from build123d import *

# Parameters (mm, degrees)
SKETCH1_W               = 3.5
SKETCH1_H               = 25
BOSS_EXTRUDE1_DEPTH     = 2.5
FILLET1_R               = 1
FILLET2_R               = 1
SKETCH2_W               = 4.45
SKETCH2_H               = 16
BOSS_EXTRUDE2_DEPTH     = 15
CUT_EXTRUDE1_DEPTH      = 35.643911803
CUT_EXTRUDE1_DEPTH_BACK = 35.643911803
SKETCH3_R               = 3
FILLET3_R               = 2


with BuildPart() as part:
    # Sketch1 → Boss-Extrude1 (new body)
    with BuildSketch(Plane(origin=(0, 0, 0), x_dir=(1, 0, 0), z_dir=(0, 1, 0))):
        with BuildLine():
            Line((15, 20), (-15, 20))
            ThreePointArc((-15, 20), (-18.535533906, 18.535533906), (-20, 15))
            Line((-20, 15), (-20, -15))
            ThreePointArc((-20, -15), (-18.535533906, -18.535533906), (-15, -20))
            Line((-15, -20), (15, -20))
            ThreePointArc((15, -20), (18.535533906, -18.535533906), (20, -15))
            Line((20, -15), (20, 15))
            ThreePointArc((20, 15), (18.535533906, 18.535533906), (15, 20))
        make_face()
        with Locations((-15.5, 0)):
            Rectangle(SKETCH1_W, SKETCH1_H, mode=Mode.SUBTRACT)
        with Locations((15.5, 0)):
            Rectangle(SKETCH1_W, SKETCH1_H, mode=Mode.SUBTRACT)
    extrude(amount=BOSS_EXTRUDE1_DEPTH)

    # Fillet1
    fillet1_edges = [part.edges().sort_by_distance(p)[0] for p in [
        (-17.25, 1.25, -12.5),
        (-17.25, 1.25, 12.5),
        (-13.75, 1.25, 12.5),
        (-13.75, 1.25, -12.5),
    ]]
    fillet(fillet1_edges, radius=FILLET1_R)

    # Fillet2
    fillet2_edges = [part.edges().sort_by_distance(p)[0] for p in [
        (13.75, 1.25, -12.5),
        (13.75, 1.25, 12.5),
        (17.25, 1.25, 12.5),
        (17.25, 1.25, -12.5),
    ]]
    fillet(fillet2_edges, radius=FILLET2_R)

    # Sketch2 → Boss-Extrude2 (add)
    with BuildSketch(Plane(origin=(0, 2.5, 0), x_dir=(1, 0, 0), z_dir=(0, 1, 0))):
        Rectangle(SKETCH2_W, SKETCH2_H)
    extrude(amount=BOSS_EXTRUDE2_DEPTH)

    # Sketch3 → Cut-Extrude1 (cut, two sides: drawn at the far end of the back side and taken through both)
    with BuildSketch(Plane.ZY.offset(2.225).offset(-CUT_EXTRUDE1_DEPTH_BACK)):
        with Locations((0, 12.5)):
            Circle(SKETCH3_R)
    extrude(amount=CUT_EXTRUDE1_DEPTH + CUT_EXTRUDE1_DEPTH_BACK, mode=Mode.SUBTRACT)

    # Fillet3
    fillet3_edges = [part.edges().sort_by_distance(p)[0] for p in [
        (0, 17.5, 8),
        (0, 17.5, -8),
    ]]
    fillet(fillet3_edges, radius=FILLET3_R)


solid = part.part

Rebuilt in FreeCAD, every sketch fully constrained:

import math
import FreeCAD as App
import Part
import Sketcher

V = App.Vector


def edges_at(feature, points):
    """Names of the edges that pass closest to the given points."""
    edges = feature.Shape.Edges
    near = lambda p: min(range(len(edges)), key=lambda i: edges[i].distToShape(Part.Vertex(*p))[0])
    return sorted({f"Edge{near(p) + 1}" for p in points})

doc = App.newDocument("Part")
body = doc.addObject("PartDesign::Body", "Body")

sketch1 = body.newObject("Sketcher::SketchObject", "Sketch")
sketch1.AttachmentSupport = (doc.getObject("XZ_Plane"), [""])
sketch1.MapMode = "FlatFace"
sketch1.addGeometry(Part.LineSegment(V(15, -20, 0), V(-15, -20, 0)), False)
sketch1.addGeometry(Part.ArcOfCircle(Part.Circle(V(-15, -15, 0), V(0, 0, 1), 5), math.radians(180), math.radians(270)), False)
sketch1.addGeometry(Part.LineSegment(V(-20, -15, 0), V(-20, 15, 0)), False)
sketch1.addGeometry(Part.ArcOfCircle(Part.Circle(V(-15, 15, 0), V(0, 0, 1), 5), math.radians(90), math.radians(180)), False)
sketch1.addGeometry(Part.LineSegment(V(-15, 20, 0), V(15, 20, 0)), False)
sketch1.addGeometry(Part.ArcOfCircle(Part.Circle(V(15, 15, 0), V(0, 0, 1), 5), math.radians(0), math.radians(90)), False)
sketch1.addGeometry(Part.LineSegment(V(20, 15, 0), V(20, -15, 0)), False)
sketch1.addGeometry(Part.ArcOfCircle(Part.Circle(V(15, -15, 0), V(0, 0, 1), 5), math.radians(-90), math.radians(0)), False)
sketch1.addGeometry(Part.LineSegment(V(-13.8, 12.5, 0), V(-17.2, 12.5, 0)), False)
sketch1.addGeometry(Part.LineSegment(V(-17.2, 12.5, 0), V(-17.2, -12.5, 0)), False)
sketch1.addGeometry(Part.LineSegment(V(-17.2, -12.5, 0), V(-13.8, -12.5, 0)), False)
sketch1.addGeometry(Part.LineSegment(V(-13.8, -12.5, 0), V(-13.8, 12.5, 0)), False)
sketch1.addGeometry(Part.LineSegment(V(17.2, 12.5, 0), V(13.8, 12.5, 0)), False)
sketch1.addGeometry(Part.LineSegment(V(13.8, 12.5, 0), V(13.8, -12.5, 0)), False)
sketch1.addGeometry(Part.LineSegment(V(13.8, -12.5, 0), V(17.2, -12.5, 0)), False)
sketch1.addGeometry(Part.LineSegment(V(17.2, -12.5, 0), V(17.2, 12.5, 0)), False)
sketch1.addConstraint(Sketcher.Constraint("Tangent", 0, 2, 1, 2))
sketch1.addConstraint(Sketcher.Constraint("Tangent", 1, 1, 2, 1))
sketch1.addConstraint(Sketcher.Constraint("Tangent", 2, 2, 3, 2))
sketch1.addConstraint(Sketcher.Constraint("Tangent", 3, 1, 4, 1))
sketch1.addConstraint(Sketcher.Constraint("Tangent", 4, 2, 5, 2))
sketch1.addConstraint(Sketcher.Constraint("Tangent", 5, 1, 6, 1))
sketch1.addConstraint(Sketcher.Constraint("Tangent", 6, 2, 7, 2))
sketch1.addConstraint(Sketcher.Constraint("Tangent", 7, 1, 0, 1))
sketch1.addConstraint(Sketcher.Constraint("Coincident", 8, 2, 9, 1))
sketch1.addConstraint(Sketcher.Constraint("Coincident", 9, 2, 10, 1))
sketch1.addConstraint(Sketcher.Constraint("Coincident", 10, 2, 11, 1))
sketch1.addConstraint(Sketcher.Constraint("Coincident", 11, 2, 8, 1))
sketch1.addConstraint(Sketcher.Constraint("Coincident", 12, 2, 13, 1))
sketch1.addConstraint(Sketcher.Constraint("Coincident", 13, 2, 14, 1))
sketch1.addConstraint(Sketcher.Constraint("Coincident", 14, 2, 15, 1))
sketch1.addConstraint(Sketcher.Constraint("Coincident", 15, 2, 12, 1))
sketch1.addConstraint(Sketcher.Constraint("Horizontal", 0))
sketch1.addConstraint(Sketcher.Constraint("Vertical", 2))
sketch1.addConstraint(Sketcher.Constraint("Horizontal", 4))
sketch1.addConstraint(Sketcher.Constraint("Vertical", 6))
sketch1.addConstraint(Sketcher.Constraint("Horizontal", 8))
sketch1.addConstraint(Sketcher.Constraint("Vertical", 9))
sketch1.addConstraint(Sketcher.Constraint("Horizontal", 10))
sketch1.addConstraint(Sketcher.Constraint("Vertical", 11))
sketch1.addConstraint(Sketcher.Constraint("Horizontal", 12))
sketch1.addConstraint(Sketcher.Constraint("Vertical", 13))
sketch1.addConstraint(Sketcher.Constraint("Horizontal", 14))
sketch1.addConstraint(Sketcher.Constraint("Vertical", 15))
sketch1.addConstraint(Sketcher.Constraint("Equal", 1, 3))
sketch1.addConstraint(Sketcher.Constraint("Equal", 3, 5))
sketch1.addConstraint(Sketcher.Constraint("Equal", 5, 7))
sketch1.addConstraint(Sketcher.Constraint("Symmetric", 1, 3, 5, 3, -1, 1))
sketch1.addConstraint(Sketcher.Constraint("Symmetric", 10, 2, 12, 2, -1, 1))
sketch1.addConstraint(Sketcher.Constraint("Symmetric", 8, 2, 14, 2, -1, 1))
sketch1.addConstraint(Sketcher.Constraint("Horizontal", 11, 2, 12, 2))
sketch1.addConstraint(Sketcher.Constraint("Equal", 4, 2))
sketch1.addConstraint(Sketcher.Constraint("Radius", 1, 5.0))
sketch1.addConstraint(Sketcher.Constraint("DistanceX", 0, 2, 0, 1, 30.0))
sketch1.addConstraint(Sketcher.Constraint("DistanceY", 9, 2, 9, 1, 25.0))
sketch1.addConstraint(Sketcher.Constraint("DistanceX", 8, 2, 8, 1, 3.5))
sketch1.addConstraint(Sketcher.Constraint("DistanceX", 11, 2, 12, 2, 27.5))
pad1 = body.newObject("PartDesign::Pad", "Pad")
pad1.Profile = sketch1
pad1.Length = 2.5
pad1.Reversed = True
doc.recompute()

fillet = body.newObject("PartDesign::Fillet", "Fillet")
fillet.Base = (pad1, edges_at(pad1, [
    (-17.25, 1.25, -12.5),
    (-17.25, 1.25, 12.5),
    (-13.75, 1.25, 12.5),
    (-13.75, 1.25, -12.5),
]))
fillet.Radius = 1
doc.recompute()

fillet2 = body.newObject("PartDesign::Fillet", "Fillet001")
fillet2.Base = (fillet, edges_at(fillet, [
    (13.75, 1.25, -12.5),
    (13.75, 1.25, 12.5),
    (17.25, 1.25, 12.5),
    (17.25, 1.25, -12.5),
]))
fillet2.Radius = 1

sketch2 = body.newObject("Sketcher::SketchObject", "Sketch001")
sketch2.AttachmentSupport = (doc.getObject("XZ_Plane"), [""])
sketch2.MapMode = "FlatFace"
sketch2.AttachmentOffset = App.Placement(V(0, 0, -2.5), App.Rotation())
sketch2.addGeometry(Part.LineSegment(V(-2.2, -8, 0), V(-2.2, 8, 0)), False)
sketch2.addGeometry(Part.LineSegment(V(-2.2, 8, 0), V(2.2, 8, 0)), False)
sketch2.addGeometry(Part.LineSegment(V(2.2, 8, 0), V(2.2, -8, 0)), False)
sketch2.addGeometry(Part.LineSegment(V(2.2, -8, 0), V(-2.2, -8, 0)), False)
sketch2.addConstraint(Sketcher.Constraint("Coincident", 0, 2, 1, 1))
sketch2.addConstraint(Sketcher.Constraint("Coincident", 1, 2, 2, 1))
sketch2.addConstraint(Sketcher.Constraint("Coincident", 2, 2, 3, 1))
sketch2.addConstraint(Sketcher.Constraint("Coincident", 3, 2, 0, 1))
sketch2.addConstraint(Sketcher.Constraint("Vertical", 0))
sketch2.addConstraint(Sketcher.Constraint("Horizontal", 1))
sketch2.addConstraint(Sketcher.Constraint("Vertical", 2))
sketch2.addConstraint(Sketcher.Constraint("Horizontal", 3))
sketch2.addConstraint(Sketcher.Constraint("Symmetric", 0, 2, 2, 2, -1, 1))
sketch2.addConstraint(Sketcher.Constraint("DistanceY", 0, 1, 0, 2, 16.0))
sketch2.addConstraint(Sketcher.Constraint("DistanceX", 1, 1, 1, 2, 4.45))
pad2 = body.newObject("PartDesign::Pad", "Pad001")
pad2.Profile = sketch2
pad2.Length = 15
pad2.Reversed = True

sketch3 = body.newObject("Sketcher::SketchObject", "Sketch002")
sketch3.AttachmentSupport = (doc.getObject("YZ_Plane"), [""])
sketch3.MapMode = "FlatFace"
sketch3.AttachmentOffset = App.Placement(V(0, 0, -2.225), App.Rotation())
sketch3.addGeometry(Part.Circle(V(12.5, 0, 0), V(0, 0, 1), 3), False)
sketch3.addConstraint(Sketcher.Constraint("PointOnObject", 0, 3, -1))
sketch3.addConstraint(Sketcher.Constraint("Diameter", 0, 6.0))
sketch3.addConstraint(Sketcher.Constraint("DistanceX", -1, 1, 0, 3, 12.5))
pocket1 = body.newObject("PartDesign::Pocket", "Pocket")
pocket1.Profile = sketch3
pocket1.Type = "ThroughAll"
pocket1.Midplane = True
doc.recompute()

fillet3 = body.newObject("PartDesign::Fillet", "Fillet002")
fillet3.Base = (pocket1, edges_at(pocket1, [(0, 17.5, 8), (0, 17.5, -8)]))
fillet3.Radius = 2

doc.recompute()
